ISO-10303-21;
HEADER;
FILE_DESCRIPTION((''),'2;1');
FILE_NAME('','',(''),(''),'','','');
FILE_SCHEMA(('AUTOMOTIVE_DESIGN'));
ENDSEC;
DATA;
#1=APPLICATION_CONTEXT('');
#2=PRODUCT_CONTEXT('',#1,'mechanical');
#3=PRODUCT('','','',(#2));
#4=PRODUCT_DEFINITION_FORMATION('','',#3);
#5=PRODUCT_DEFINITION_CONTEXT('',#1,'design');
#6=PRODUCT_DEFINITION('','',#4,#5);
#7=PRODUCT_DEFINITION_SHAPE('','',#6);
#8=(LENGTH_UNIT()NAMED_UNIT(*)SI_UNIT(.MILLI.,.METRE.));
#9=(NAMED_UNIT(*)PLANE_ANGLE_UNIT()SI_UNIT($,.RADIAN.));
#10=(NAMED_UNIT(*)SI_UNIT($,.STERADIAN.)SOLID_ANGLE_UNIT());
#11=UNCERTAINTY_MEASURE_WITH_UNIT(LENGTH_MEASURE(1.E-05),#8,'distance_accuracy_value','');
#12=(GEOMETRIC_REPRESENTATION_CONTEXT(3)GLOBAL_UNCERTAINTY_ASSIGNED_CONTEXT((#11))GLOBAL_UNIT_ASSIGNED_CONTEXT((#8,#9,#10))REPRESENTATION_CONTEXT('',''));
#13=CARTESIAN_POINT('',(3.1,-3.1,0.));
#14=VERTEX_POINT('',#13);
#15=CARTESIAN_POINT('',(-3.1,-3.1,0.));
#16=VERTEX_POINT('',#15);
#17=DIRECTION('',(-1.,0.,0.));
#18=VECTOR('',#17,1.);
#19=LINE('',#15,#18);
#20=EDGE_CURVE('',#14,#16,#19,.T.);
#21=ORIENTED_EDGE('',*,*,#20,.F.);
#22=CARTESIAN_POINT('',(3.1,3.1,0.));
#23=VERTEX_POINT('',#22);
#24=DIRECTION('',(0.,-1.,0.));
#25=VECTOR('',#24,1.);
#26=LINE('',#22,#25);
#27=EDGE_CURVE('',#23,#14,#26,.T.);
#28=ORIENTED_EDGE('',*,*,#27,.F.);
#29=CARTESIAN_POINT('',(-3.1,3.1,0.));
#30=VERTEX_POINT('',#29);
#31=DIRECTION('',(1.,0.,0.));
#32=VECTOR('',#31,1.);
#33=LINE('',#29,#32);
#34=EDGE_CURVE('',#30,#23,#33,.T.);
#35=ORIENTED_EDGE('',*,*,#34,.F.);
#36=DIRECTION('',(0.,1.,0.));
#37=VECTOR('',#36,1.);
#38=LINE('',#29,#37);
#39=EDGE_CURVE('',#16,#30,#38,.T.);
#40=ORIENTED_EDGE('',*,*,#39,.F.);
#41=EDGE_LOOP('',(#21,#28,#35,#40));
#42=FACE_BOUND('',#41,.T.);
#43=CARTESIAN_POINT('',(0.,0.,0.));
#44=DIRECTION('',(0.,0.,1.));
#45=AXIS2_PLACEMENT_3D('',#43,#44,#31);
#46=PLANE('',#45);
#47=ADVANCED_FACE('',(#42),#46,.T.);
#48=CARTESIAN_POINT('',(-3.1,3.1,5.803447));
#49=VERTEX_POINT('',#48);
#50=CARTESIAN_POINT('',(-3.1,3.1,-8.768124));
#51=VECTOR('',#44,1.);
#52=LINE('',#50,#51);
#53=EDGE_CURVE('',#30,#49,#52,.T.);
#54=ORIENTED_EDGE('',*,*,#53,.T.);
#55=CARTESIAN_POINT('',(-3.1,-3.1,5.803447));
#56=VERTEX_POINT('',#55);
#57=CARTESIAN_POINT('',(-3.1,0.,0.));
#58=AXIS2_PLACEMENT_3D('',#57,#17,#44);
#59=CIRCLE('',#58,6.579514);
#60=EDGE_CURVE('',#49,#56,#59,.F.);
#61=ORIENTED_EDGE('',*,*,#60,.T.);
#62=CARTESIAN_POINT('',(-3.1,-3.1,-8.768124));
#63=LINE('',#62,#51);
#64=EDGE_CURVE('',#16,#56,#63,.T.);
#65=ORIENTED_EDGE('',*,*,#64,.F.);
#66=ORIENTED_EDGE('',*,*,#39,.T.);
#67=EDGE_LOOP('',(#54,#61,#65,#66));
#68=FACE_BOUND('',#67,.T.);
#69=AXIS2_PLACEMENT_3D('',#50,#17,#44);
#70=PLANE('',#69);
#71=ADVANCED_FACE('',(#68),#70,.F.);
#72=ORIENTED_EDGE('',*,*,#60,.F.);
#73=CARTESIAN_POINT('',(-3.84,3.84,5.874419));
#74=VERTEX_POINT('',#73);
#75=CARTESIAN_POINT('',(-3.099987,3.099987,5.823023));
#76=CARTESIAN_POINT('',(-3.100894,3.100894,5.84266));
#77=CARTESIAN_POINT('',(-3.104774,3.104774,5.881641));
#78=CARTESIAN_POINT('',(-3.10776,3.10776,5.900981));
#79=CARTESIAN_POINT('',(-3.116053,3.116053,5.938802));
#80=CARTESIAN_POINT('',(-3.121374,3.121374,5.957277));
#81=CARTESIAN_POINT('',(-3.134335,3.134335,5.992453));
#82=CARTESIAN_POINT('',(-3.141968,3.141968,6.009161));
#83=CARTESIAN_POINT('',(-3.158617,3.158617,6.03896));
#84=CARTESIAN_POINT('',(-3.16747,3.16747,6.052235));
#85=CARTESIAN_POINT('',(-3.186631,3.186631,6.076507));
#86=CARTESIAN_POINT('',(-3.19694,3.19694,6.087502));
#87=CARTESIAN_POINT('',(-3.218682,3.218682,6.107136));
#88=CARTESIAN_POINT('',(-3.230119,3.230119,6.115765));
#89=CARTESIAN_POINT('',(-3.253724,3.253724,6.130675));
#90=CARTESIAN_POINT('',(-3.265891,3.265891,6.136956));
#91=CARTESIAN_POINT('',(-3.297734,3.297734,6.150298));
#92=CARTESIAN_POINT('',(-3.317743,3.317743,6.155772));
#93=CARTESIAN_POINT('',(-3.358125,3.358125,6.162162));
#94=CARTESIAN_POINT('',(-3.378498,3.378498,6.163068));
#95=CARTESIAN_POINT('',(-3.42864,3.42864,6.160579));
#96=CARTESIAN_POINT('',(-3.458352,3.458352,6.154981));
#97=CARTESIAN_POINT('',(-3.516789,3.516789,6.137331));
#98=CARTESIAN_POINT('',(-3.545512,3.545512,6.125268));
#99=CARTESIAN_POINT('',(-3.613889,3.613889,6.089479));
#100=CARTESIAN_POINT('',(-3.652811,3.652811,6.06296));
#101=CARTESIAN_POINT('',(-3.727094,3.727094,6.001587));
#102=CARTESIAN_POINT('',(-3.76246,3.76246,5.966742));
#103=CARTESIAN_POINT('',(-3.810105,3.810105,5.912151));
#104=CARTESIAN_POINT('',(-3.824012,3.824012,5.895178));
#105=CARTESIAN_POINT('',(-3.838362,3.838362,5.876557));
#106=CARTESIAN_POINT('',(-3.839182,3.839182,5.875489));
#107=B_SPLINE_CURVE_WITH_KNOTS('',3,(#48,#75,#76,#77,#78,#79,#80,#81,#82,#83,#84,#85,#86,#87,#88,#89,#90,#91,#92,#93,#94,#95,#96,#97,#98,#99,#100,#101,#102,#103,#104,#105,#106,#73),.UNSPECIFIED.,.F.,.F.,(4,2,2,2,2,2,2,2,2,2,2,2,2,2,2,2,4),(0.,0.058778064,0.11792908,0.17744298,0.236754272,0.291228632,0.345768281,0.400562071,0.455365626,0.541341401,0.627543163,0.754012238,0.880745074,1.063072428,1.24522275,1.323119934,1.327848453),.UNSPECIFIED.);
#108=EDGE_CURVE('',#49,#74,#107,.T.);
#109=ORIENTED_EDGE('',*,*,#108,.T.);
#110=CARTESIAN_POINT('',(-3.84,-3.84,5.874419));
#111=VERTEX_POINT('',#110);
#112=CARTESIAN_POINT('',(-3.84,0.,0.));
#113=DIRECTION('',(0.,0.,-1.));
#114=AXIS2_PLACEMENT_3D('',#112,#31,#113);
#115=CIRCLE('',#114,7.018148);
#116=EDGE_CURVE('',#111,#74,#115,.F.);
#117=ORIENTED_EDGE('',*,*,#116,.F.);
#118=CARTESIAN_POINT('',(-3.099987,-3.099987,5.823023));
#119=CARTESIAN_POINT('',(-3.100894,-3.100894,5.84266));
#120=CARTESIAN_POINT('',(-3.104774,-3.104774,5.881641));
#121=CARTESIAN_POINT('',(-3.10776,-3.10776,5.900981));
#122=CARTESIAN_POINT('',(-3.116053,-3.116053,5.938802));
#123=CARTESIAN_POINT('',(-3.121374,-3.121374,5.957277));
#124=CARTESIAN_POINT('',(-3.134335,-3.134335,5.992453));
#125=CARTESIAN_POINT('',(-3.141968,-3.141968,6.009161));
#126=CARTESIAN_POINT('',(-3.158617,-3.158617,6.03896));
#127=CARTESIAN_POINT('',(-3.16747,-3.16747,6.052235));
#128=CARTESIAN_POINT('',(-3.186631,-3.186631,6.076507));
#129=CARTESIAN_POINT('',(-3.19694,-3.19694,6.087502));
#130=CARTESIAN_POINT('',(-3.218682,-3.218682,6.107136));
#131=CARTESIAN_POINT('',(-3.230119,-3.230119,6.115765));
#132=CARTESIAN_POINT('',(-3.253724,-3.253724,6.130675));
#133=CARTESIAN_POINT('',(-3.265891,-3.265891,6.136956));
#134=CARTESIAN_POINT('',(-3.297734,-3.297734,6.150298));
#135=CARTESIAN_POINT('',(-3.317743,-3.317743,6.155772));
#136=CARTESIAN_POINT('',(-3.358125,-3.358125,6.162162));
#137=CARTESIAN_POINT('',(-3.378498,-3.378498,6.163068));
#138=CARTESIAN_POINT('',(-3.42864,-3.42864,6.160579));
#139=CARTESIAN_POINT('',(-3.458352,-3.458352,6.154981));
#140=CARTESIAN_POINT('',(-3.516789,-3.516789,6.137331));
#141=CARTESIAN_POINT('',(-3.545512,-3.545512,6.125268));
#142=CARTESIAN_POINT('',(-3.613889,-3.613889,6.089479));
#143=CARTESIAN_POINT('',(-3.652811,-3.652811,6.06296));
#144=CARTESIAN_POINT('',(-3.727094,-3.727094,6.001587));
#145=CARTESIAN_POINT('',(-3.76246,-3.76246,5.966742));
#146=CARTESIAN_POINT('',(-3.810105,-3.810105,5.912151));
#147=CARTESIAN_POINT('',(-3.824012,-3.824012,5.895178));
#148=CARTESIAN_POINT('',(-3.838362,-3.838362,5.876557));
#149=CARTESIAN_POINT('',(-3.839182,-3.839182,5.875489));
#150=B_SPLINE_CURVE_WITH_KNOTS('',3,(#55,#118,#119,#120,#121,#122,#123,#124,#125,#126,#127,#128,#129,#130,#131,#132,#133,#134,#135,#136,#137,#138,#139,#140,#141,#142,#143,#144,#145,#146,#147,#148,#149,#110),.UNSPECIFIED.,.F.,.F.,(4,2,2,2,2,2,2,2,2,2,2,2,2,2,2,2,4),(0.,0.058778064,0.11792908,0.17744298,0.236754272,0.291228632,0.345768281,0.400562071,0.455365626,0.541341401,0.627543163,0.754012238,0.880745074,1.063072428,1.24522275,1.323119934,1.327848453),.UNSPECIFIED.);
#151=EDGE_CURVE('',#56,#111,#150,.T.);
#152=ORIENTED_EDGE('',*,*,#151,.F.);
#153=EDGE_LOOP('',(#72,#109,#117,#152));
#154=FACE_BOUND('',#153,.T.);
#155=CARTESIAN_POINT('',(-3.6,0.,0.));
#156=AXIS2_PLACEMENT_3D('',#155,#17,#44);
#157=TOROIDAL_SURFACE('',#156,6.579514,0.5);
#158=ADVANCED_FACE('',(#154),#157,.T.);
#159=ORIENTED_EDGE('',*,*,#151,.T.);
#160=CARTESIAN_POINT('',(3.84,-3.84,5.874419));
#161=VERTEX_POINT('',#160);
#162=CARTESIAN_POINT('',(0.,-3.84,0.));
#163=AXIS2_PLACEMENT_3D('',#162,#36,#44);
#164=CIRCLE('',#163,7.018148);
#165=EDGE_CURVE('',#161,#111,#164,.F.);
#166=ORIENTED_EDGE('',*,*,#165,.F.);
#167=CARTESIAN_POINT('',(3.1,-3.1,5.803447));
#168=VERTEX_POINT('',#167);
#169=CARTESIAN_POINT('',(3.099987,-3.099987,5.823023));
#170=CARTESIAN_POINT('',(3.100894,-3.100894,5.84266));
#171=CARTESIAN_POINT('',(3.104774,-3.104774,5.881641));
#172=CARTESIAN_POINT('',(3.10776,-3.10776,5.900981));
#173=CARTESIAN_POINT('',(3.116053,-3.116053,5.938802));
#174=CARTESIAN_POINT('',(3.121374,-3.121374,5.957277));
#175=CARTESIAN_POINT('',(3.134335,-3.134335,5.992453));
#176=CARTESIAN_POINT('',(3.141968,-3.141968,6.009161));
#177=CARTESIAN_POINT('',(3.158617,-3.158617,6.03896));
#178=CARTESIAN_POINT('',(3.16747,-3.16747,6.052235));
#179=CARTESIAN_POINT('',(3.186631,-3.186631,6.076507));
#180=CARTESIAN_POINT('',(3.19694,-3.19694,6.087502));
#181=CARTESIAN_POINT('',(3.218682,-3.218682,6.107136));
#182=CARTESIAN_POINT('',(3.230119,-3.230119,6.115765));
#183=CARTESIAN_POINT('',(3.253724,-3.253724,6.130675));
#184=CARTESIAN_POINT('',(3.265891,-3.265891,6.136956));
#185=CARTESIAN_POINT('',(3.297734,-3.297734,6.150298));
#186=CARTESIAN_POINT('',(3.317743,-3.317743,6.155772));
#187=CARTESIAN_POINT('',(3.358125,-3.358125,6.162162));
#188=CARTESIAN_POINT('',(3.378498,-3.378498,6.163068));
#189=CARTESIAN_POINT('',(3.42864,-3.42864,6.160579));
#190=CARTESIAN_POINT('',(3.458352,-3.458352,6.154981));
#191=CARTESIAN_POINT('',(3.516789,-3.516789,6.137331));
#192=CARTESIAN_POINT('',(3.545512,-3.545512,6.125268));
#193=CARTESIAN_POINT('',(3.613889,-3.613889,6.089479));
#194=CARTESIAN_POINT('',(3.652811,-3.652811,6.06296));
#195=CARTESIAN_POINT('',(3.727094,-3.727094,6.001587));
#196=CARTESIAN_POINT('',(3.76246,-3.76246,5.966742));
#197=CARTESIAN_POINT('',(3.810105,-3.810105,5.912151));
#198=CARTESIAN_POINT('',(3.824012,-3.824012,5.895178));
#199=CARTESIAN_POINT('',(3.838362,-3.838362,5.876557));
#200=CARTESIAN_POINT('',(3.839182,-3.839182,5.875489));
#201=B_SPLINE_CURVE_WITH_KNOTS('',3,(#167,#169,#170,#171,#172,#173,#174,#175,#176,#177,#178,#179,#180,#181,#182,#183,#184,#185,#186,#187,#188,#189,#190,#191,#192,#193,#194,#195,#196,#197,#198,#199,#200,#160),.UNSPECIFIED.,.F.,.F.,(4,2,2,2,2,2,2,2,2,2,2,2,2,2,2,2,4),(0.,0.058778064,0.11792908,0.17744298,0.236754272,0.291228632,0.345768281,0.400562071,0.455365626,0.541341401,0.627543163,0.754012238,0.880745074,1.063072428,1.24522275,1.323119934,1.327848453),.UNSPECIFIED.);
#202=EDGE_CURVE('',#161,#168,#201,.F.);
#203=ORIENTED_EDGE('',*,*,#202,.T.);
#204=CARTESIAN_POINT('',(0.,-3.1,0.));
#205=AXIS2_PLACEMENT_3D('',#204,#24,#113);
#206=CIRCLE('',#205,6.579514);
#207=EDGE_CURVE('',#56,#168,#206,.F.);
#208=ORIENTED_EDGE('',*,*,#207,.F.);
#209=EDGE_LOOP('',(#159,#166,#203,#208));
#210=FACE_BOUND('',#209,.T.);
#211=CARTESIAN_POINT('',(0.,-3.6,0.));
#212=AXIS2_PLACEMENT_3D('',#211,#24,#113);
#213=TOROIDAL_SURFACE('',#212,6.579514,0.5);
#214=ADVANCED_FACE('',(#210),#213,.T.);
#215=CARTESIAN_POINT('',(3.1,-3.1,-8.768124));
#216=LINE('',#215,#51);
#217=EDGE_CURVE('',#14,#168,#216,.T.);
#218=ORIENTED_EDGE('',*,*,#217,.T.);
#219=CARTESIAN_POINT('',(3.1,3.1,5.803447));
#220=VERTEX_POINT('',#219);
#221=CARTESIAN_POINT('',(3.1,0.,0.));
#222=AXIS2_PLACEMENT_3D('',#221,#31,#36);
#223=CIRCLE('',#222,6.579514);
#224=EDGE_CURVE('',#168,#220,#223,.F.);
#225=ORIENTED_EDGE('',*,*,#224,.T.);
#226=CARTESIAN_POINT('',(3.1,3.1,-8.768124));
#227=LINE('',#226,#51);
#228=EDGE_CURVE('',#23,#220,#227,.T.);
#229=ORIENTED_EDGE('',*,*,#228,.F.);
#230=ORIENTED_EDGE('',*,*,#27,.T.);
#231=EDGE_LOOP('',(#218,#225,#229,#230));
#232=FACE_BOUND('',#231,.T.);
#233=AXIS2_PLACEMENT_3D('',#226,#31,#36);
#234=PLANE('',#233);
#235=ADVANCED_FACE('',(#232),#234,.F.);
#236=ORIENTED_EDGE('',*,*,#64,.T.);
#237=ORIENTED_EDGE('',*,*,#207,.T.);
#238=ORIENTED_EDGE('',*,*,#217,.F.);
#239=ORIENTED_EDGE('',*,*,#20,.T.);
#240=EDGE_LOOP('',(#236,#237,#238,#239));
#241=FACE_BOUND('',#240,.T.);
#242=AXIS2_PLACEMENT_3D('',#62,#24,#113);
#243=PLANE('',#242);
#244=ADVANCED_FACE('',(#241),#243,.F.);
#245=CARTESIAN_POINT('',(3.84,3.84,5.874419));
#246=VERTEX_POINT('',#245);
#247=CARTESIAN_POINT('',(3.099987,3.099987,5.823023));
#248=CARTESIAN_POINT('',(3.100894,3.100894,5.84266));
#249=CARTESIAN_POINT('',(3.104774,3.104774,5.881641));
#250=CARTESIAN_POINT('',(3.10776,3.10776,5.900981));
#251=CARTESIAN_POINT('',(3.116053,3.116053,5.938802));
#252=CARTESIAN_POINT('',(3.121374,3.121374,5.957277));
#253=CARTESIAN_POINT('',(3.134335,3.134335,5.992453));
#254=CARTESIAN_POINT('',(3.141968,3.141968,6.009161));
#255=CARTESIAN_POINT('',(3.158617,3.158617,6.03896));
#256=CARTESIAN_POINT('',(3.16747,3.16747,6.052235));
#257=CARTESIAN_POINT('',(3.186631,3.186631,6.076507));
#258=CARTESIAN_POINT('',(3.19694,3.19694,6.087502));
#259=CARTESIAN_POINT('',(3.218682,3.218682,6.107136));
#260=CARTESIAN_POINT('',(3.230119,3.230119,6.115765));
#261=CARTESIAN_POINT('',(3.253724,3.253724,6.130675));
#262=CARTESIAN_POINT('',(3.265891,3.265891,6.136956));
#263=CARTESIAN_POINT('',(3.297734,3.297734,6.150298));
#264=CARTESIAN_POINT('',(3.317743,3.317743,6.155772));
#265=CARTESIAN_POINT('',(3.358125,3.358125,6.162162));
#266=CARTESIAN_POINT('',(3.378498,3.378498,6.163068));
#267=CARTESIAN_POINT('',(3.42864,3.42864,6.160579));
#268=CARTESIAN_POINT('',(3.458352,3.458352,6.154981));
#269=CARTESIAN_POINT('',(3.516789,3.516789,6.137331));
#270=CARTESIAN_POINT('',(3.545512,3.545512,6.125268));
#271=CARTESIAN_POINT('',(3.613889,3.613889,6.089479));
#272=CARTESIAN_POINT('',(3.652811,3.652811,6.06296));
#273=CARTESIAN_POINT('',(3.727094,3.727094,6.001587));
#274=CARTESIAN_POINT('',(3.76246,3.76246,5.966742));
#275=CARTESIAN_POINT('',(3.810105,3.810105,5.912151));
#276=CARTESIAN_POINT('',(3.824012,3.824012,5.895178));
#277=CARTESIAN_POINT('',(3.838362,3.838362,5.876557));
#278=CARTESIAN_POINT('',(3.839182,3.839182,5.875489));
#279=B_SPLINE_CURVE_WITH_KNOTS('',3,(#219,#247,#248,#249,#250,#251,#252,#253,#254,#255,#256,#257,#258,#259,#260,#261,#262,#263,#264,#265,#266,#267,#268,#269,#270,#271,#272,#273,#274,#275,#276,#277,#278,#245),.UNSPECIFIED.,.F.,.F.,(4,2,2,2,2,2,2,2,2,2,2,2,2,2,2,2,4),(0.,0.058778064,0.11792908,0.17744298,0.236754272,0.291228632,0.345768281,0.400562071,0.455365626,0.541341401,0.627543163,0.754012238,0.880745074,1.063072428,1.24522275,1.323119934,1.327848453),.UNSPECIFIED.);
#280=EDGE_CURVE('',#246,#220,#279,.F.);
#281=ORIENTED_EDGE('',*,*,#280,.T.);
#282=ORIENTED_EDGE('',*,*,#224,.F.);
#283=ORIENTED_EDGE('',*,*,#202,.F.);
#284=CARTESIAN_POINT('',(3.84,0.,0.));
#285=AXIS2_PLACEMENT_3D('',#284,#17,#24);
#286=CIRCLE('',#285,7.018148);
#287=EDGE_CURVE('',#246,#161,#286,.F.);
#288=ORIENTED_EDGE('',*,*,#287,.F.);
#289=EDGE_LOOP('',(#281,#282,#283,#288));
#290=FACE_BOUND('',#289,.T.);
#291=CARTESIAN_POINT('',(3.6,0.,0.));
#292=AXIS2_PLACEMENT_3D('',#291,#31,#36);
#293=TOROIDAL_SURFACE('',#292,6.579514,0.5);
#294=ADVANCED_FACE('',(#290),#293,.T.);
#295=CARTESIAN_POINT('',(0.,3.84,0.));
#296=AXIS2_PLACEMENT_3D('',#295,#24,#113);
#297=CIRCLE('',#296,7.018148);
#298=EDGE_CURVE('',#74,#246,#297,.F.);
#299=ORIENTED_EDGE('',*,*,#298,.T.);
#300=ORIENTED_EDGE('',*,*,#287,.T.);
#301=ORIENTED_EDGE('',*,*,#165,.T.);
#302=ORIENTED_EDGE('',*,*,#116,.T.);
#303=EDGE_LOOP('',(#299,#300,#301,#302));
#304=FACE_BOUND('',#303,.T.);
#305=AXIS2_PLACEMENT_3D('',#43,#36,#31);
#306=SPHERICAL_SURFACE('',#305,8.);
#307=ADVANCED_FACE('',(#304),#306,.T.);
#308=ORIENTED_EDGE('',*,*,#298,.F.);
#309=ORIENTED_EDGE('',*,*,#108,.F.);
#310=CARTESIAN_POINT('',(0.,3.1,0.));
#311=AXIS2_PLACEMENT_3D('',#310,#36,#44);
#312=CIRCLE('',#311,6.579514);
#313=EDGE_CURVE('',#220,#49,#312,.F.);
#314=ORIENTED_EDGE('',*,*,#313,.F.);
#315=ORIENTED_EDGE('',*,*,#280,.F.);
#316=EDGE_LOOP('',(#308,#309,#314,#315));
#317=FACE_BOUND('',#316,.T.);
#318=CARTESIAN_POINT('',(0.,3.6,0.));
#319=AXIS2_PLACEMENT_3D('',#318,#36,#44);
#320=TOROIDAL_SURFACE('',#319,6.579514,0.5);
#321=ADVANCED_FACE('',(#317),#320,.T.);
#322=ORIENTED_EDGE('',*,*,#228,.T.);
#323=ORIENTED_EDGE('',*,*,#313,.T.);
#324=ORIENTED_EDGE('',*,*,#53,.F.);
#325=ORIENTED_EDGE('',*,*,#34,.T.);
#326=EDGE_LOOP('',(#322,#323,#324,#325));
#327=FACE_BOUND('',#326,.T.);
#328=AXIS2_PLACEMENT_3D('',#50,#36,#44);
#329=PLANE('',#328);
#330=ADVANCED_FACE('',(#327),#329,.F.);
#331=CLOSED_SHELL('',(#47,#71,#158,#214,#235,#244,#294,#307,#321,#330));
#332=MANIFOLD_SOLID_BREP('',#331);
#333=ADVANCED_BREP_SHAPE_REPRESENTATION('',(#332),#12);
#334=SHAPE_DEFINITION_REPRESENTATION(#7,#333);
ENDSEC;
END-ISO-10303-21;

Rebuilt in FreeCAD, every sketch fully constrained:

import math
import FreeCAD as App
import Part
import Sketcher

V = App.Vector


def edges_at(feature, points):
    """Names of the edges that pass closest to the given points."""
    edges = feature.Shape.Edges
    near = lambda p: min(range(len(edges)), key=lambda i: edges[i].distToShape(Part.Vertex(*p))[0])
    return sorted({f"Edge{near(p) + 1}" for p in points})

doc = App.newDocument("Part")
body = doc.addObject("PartDesign::Body", "Body")

# Sketch on XY plane
sketch1 = doc.addObject("Sketcher::SketchObject", "Sketch")
body.addObject(sketch1)
sketch1.AttachmentSupport = (doc.XY_Plane, [""])
sketch1.MapMode = "FlatFace"
sketch1.addGeometry([
    Part.LineSegment(V(0, 8, 0), V(0, -8, 0)),
    Part.ArcOfCircle(Part.Circle(V(0, 0, 0), V(0, 0, 1), 8), math.radians(-90), math.radians(90)),
], False)
sketch1.addConstraint([
    Sketcher.Constraint("Coincident", 0, 1, 1, 2),
    Sketcher.Constraint("Coincident", 1, 1, 0, 2),
    Sketcher.Constraint("Vertical", 0),
    Sketcher.Constraint("Coincident", 1, 3, -1, 1),
    Sketcher.Constraint("PointOnObject", 0, 1, -2),
    Sketcher.Constraint("Radius", 1, 8.0),
])
revolution = doc.addObject("PartDesign::Revolution", "Revolution")
body.addObject(revolution)
revolution.Profile = sketch1
revolution.ReferenceAxis = (sketch1, ["V_Axis"])
revolution.Angle = 360

# Sketch on XY plane
sketch2 = doc.addObject("Sketcher::SketchObject", "Sketch001")
body.addObject(sketch2)
sketch2.AttachmentSupport = (doc.XY_Plane, [""])
sketch2.MapMode = "FlatFace"
sketch2.AttachmentOffset = App.Placement(V(0, 0, 8), App.Rotation())
sketch2.addGeometry([
    Part.LineSegment(V(-3, 3, 0), V(-3, -3, 0)),
    Part.LineSegment(V(-3, -3, 0), V(3, -3, 0)),
    Part.LineSegment(V(3, -3, 0), V(3, 3, 0)),
    Part.LineSegment(V(3, 3, 0), V(-3, 3, 0)),
], False)
sketch2.addConstraint([
    Sketcher.Constraint("Coincident", 0, 2, 1, 1),
    Sketcher.Constraint("Coincident", 1, 2, 2, 1),
    Sketcher.Constraint("Coincident", 2, 2, 3, 1),
    Sketcher.Constraint("Coincident", 3, 2, 0, 1),
    Sketcher.Constraint("Vertical", 0),
    Sketcher.Constraint("Horizontal", 1),
    Sketcher.Constraint("Vertical", 2),
    Sketcher.Constraint("Horizontal", 3),
    Sketcher.Constraint("Symmetric", 0, 2, 2, 2, -1, 1),
    Sketcher.Constraint("Equal", 3, 0),
    Sketcher.Constraint("DistanceX", 1, 1, 1, 2, 6.2),
])
pocket1 = doc.addObject("PartDesign::Pocket", "Pocket")
body.addObject(pocket1)
pocket1.Profile = sketch2
pocket1.Length = 8
doc.recompute()

fillet = doc.addObject("PartDesign::Fillet", "Fillet")
body.addObject(fillet)
fillet.Base = (pocket1, edges_at(pocket1, [
    (0, -3.1, 7.375),
    (3.1, 0, 7.375),
    (0, 3.1, 7.375),
    (-3.1, 0, 7.375),
]))
fillet.Radius = 0.5

doc.recompute()
